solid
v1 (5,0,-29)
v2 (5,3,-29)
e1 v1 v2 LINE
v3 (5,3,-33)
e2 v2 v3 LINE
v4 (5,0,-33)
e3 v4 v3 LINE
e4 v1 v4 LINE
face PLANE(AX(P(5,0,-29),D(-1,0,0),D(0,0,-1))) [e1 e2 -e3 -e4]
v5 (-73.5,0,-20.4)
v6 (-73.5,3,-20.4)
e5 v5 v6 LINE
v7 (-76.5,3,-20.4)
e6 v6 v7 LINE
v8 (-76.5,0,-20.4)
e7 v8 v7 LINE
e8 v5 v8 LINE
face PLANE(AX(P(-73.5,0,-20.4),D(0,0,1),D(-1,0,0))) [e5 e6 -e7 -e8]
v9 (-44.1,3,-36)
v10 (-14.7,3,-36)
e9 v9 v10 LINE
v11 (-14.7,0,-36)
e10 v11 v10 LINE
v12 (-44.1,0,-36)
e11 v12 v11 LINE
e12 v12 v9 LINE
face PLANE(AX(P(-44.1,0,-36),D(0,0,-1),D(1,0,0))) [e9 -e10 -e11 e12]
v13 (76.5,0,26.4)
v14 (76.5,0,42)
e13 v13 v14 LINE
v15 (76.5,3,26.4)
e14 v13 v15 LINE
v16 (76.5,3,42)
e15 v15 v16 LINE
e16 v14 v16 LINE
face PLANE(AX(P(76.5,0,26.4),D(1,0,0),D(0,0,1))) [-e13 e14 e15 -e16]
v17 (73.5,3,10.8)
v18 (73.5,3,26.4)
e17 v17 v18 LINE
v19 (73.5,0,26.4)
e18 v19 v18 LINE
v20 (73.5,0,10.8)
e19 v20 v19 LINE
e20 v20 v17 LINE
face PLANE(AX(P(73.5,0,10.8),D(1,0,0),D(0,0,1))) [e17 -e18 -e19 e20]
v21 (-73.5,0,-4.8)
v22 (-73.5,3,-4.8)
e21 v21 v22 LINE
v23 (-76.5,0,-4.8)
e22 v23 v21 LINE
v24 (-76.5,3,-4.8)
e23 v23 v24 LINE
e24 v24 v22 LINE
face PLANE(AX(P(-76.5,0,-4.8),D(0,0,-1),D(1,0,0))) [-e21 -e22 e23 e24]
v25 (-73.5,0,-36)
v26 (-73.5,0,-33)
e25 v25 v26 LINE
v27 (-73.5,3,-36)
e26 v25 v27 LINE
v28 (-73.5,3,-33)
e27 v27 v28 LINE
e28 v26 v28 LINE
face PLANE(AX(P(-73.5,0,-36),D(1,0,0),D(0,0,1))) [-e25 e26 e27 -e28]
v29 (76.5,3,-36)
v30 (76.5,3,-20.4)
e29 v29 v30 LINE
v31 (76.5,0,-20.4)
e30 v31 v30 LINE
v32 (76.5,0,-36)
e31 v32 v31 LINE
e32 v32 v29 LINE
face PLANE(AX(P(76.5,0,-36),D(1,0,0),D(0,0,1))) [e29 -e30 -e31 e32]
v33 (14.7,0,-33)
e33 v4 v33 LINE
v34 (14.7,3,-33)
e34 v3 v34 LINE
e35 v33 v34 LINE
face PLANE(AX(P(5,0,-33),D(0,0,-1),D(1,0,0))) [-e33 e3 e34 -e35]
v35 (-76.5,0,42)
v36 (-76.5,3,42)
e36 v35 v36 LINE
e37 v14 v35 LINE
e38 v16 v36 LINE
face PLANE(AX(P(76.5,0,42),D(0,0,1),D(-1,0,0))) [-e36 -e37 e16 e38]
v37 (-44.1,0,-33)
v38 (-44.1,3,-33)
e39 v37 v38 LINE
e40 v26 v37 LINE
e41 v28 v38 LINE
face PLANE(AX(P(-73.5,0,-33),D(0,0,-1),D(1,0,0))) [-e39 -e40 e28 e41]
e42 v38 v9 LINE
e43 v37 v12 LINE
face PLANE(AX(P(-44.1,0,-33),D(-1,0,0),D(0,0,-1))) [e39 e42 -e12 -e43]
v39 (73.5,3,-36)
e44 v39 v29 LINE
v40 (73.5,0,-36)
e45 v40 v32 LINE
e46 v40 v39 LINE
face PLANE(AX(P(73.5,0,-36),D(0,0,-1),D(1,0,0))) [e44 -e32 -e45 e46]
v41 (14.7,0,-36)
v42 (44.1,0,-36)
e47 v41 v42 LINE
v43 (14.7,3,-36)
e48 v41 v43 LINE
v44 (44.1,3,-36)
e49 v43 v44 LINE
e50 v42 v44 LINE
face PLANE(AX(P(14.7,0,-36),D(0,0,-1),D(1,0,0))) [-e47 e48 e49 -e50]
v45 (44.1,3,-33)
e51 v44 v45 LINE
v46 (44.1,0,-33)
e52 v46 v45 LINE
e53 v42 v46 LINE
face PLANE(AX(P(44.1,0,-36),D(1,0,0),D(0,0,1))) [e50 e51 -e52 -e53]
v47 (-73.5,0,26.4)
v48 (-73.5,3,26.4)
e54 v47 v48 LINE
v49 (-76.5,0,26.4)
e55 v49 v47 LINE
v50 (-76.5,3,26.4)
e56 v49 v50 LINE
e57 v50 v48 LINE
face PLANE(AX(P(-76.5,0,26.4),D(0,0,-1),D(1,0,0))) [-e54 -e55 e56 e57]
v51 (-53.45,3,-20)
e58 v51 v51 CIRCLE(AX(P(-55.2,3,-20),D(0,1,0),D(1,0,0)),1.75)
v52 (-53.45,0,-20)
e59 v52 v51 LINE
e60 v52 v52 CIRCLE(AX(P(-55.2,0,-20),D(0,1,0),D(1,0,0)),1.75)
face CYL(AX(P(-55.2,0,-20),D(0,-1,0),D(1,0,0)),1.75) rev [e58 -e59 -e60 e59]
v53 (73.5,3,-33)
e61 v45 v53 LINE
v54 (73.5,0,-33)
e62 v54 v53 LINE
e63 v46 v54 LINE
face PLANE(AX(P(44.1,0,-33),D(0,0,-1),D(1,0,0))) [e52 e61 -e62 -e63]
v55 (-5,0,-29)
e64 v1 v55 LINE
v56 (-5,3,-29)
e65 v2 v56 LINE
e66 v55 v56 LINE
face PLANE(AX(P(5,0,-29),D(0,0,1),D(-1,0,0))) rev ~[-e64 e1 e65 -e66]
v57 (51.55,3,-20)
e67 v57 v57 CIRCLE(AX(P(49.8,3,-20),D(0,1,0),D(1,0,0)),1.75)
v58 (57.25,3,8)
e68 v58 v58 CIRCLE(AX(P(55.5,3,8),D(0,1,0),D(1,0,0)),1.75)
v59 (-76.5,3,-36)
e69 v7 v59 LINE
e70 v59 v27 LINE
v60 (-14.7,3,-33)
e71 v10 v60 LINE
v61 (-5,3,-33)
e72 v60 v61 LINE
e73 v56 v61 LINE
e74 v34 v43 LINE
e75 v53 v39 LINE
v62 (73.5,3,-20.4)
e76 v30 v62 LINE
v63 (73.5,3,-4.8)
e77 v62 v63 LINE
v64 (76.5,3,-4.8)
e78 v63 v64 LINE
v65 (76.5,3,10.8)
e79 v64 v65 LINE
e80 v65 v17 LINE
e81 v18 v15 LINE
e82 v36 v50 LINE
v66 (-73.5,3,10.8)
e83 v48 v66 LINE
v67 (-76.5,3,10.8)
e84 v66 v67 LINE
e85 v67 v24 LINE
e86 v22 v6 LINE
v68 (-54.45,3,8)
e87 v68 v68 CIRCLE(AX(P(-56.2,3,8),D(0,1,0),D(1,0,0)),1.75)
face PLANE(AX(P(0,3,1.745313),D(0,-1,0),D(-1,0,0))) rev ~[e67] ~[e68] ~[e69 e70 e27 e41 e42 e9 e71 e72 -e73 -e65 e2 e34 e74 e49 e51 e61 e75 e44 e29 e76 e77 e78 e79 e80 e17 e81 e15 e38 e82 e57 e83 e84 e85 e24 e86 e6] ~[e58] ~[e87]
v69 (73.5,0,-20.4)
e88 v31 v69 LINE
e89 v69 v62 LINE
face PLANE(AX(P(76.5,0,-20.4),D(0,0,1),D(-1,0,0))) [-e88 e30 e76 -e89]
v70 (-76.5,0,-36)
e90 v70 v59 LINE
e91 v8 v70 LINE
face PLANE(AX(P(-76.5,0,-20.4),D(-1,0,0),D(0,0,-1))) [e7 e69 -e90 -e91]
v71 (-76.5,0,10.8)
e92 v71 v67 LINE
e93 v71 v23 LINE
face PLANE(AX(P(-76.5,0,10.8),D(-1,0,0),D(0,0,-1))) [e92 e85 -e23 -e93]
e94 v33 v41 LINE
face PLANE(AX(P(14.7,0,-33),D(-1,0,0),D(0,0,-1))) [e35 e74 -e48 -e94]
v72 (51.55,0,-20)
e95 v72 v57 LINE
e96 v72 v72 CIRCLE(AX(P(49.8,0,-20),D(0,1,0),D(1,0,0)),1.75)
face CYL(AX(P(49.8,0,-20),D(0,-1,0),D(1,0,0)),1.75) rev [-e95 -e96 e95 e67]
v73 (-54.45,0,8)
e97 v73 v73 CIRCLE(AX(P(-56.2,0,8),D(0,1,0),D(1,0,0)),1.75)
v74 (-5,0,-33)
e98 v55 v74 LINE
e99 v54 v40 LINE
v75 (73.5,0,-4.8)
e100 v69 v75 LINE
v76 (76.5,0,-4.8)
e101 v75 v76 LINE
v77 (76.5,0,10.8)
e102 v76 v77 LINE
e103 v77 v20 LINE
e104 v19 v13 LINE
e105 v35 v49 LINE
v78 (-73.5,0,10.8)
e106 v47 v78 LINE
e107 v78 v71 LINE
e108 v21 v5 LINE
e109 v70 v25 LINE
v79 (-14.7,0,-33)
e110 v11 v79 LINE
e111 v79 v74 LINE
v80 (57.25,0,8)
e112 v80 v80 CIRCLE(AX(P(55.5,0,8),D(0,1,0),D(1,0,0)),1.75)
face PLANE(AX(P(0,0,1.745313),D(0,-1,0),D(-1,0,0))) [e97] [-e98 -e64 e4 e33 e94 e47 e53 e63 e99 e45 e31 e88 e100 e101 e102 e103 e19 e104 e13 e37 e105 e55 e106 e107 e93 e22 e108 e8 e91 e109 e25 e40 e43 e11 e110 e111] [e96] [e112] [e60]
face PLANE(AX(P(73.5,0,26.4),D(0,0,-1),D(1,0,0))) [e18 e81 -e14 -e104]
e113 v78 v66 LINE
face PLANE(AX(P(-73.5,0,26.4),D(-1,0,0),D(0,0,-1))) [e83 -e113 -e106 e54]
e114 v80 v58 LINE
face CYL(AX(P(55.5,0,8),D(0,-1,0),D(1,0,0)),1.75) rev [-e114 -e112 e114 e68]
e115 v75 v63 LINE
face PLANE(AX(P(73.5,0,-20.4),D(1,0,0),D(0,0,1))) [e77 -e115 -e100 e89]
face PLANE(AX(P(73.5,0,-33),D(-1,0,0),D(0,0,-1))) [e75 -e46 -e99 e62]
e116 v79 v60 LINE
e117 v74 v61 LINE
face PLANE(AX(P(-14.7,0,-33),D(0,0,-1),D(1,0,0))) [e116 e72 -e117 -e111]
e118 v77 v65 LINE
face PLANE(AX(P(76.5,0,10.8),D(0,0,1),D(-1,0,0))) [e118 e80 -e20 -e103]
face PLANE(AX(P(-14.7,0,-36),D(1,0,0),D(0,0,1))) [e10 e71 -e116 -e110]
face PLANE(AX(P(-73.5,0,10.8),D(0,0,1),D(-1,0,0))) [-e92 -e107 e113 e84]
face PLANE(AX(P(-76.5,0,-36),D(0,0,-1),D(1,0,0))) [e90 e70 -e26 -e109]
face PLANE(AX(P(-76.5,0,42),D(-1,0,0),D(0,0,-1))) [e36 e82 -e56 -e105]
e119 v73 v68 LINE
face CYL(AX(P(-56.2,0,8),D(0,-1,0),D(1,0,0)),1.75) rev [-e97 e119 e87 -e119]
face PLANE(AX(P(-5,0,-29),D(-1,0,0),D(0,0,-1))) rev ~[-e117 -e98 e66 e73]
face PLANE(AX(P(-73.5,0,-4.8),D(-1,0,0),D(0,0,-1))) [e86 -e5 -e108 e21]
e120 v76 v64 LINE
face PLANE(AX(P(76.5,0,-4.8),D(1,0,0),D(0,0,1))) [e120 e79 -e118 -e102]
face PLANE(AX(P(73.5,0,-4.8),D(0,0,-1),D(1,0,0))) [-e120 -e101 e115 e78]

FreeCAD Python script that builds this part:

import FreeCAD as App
import Part
import Sketcher
Q = App.Units.Quantity


def add_polygon(sketch, points):
    """Adds a closed chain of lines whose ends are joined by coincident constraints."""
    first, n = sketch.GeometryCount, len(points)
    for a, b in zip(points, points[1:] + points[:1]):
        sketch.addGeometry(Part.LineSegment(App.Vector(*a, 0), App.Vector(*b, 0)), False)
    for i in range(n):
        sketch.addConstraint(Sketcher.Constraint("Coincident", first + i, 2, first + (i + 1) % n, 1))

doc = App.newDocument("Part")
body = doc.addObject("PartDesign::Body", "Body")

# Sketch on XZ plane
sketch1 = body.newObject("Sketcher::SketchObject", "Sketch")
sketch1.AttachmentSupport = (doc.getObject("XZ_Plane"), [""])
sketch1.MapMode = "FlatFace"
add_polygon(sketch1, [(-44.1, -33), (-73.5, -33), (-73.5, -36), (-76.5, -36), (-76.5, -20.4), (-73.5, -20.4), (-73.5, -4.8), (-76.5, -4.8), (-76.5, 10.8), (-73.5, 10.8), (-73.5, 26.4), (-76.5, 26.4), (-76.5, 42), (76.5, 42), (76.5, 26.4), (73.5, 26.4), (73.5, 10.8), (76.5, 10.8), (76.5, -4.8), (73.5, -4.8), (73.5, -20.4), (76.5, -20.4), (76.5, -36), (73.5, -36), (73.5, -33), (44.1, -33), (44.1, -36), (14.7, -36), (14.7, -33), (5, -33), (5, -29), (-5, -29), (-5, -33), (-14.7, -33), (-14.7, -36), (-44.1, -36)])  # lines 0-35
sketch1.addGeometry(Part.Circle(App.Vector(55.5, 8, 0), App.Vector(0, 0, 1), 1.75), False)  # 36
sketch1.addGeometry(Part.Circle(App.Vector(-56.2, 8, 0), App.Vector(0, 0, 1), 1.75), False)  # 37
sketch1.addGeometry(Part.Circle(App.Vector(49.8, -20, 0), App.Vector(0, 0, 1), 1.75), False)  # 38
sketch1.addGeometry(Part.Circle(App.Vector(-55.2, -20, 0), App.Vector(0, 0, 1), 1.75), False)  # 39
sketch1.addConstraint(Sketcher.Constraint("Horizontal", 0))
sketch1.addConstraint(Sketcher.Constraint("Vertical", 1))
sketch1.addConstraint(Sketcher.Constraint("Horizontal", 2))
sketch1.addConstraint(Sketcher.Constraint("Vertical", 3))
sketch1.addConstraint(Sketcher.Constraint("Horizontal", 4))
sketch1.addConstraint(Sketcher.Constraint("Vertical", 5))
sketch1.addConstraint(Sketcher.Constraint("Horizontal", 6))
sketch1.addConstraint(Sketcher.Constraint("Vertical", 7))
sketch1.addConstraint(Sketcher.Constraint("Horizontal", 8))
sketch1.addConstraint(Sketcher.Constraint("Vertical", 9))
sketch1.addConstraint(Sketcher.Constraint("Horizontal", 10))
sketch1.addConstraint(Sketcher.Constraint("Vertical", 11))
sketch1.addConstraint(Sketcher.Constraint("Horizontal", 12))
sketch1.addConstraint(Sketcher.Constraint("Vertical", 13))
sketch1.addConstraint(Sketcher.Constraint("Horizontal", 14))
sketch1.addConstraint(Sketcher.Constraint("Vertical", 15))
sketch1.addConstraint(Sketcher.Constraint("Horizontal", 16))
sketch1.addConstraint(Sketcher.Constraint("Vertical", 17))
sketch1.addConstraint(Sketcher.Constraint("Horizontal", 18))
sketch1.addConstraint(Sketcher.Constraint("Vertical", 19))
sketch1.addConstraint(Sketcher.Constraint("Horizontal", 20))
sketch1.addConstraint(Sketcher.Constraint("Vertical", 21))
sketch1.addConstraint(Sketcher.Constraint("Horizontal", 22))
sketch1.addConstraint(Sketcher.Constraint("Vertical", 23))
sketch1.addConstraint(Sketcher.Constraint("Horizontal", 24))
sketch1.addConstraint(Sketcher.Constraint("Vertical", 25))
sketch1.addConstraint(Sketcher.Constraint("Horizontal", 26))
sketch1.addConstraint(Sketcher.Constraint("Vertical", 27))
sketch1.addConstraint(Sketcher.Constraint("Horizontal", 28))
sketch1.addConstraint(Sketcher.Constraint("Vertical", 29))
sketch1.addConstraint(Sketcher.Constraint("Horizontal", 30))
sketch1.addConstraint(Sketcher.Constraint("Vertical", 31))
sketch1.addConstraint(Sketcher.Constraint("Horizontal", 32))
sketch1.addConstraint(Sketcher.Constraint("Vertical", 33))
sketch1.addConstraint(Sketcher.Constraint("Horizontal", 34))
sketch1.addConstraint(Sketcher.Constraint("Vertical", 35))
sketch1.addConstraint(Sketcher.Constraint("Equal", 36, 37))
sketch1.addConstraint(Sketcher.Constraint("Equal", 37, 38))
sketch1.addConstraint(Sketcher.Constraint("Equal", 38, 39))
sketch1.addConstraint(Sketcher.Constraint("Symmetric", 10, 2, 13, 2, -2))
sketch1.addConstraint(Sketcher.Constraint("Symmetric", 8, 2, 15, 2, -2))
sketch1.addConstraint(Sketcher.Constraint("Symmetric", 6, 2, 17, 2, -2))
sketch1.addConstraint(Sketcher.Constraint("Symmetric", 4, 2, 19, 2, -2))
sketch1.addConstraint(Sketcher.Constraint("Symmetric", 2, 2, 21, 2, -2))
sketch1.addConstraint(Sketcher.Constraint("Symmetric", 0, 2, 23, 2, -2))
sketch1.addConstraint(Sketcher.Constraint("Symmetric", 28, 2, 31, 2, -2))
sketch1.addConstraint(Sketcher.Constraint("Symmetric", 26, 2, 33, 2, -2))
sketch1.addConstraint(Sketcher.Constraint("Horizontal", 36, 3, 37, 3))
sketch1.addConstraint(Sketcher.Constraint("Horizontal", 38, 3, 39, 3))
sketch1.addConstraint(Sketcher.Constraint("Horizontal", 22, 2, 25, 2))
sketch1.addConstraint(Sketcher.Constraint("Horizontal", 24, 2, 27, 2))
sketch1.addConstraint(Sketcher.Constraint("Vertical", 1, 2, 4, 2))
sketch1.addConstraint(Sketcher.Constraint("Vertical", 3, 2, 6, 2))
sketch1.addConstraint(Sketcher.Constraint("Vertical", 5, 2, 8, 2))
sketch1.addConstraint(Sketcher.Constraint("Vertical", 7, 2, 10, 2))
sketch1.addConstraint(Sketcher.Constraint("Equal", 0, 24))
sketch1.addConstraint(Sketcher.Constraint("Equal", 24, 26))
sketch1.addConstraint(Sketcher.Constraint("Equal", 22, 1))
sketch1.addConstraint(Sketcher.Constraint("Equal", 3, 5))
sketch1.addConstraint(Sketcher.Constraint("Equal", 5, 7))
sketch1.addConstraint(Sketcher.Constraint("Equal", 7, 9))
sketch1.addConstraint(Sketcher.Constraint("Equal", 9, 11))
sketch1.addConstraint(Sketcher.Constraint("Diameter", 36, Q("3.5 mm")))
sketch1.addConstraint(Sketcher.Constraint("DistanceX", 2, 2, 2, 1, Q("3 mm")))
sketch1.addConstraint(Sketcher.Constraint("DistanceX", 12, 1, 12, 2, Q("153 mm")))
sketch1.addConstraint(Sketcher.Constraint("DistanceX", 30, 2, 30, 1, Q("10 mm")))
sketch1.addConstraint(Sketcher.Constraint("DistanceY", 29, 1, 29, 2, Q("4 mm")))
sketch1.addConstraint(Sketcher.Constraint("DistanceX", 0, 2, 0, 1, Q("29.4 mm")))
sketch1.addConstraint(Sketcher.Constraint("DistanceY", 3, 1, 3, 2, Q("15.6 mm")))
sketch1.addConstraint(Sketcher.Constraint("DistanceY", -1, 1, 36, 3, Q("8 mm")))
sketch1.addConstraint(Sketcher.Constraint("DistanceY", 38, 3, -1, 1, Q("20 mm")))
sketch1.addConstraint(Sketcher.Constraint("DistanceY", 0, 2, -1, 1, Q("33 mm")))
sketch1.addConstraint(Sketcher.Constraint("DistanceX", 37, 3, 38, 3, Q("106 mm")))
sketch1.addConstraint(Sketcher.Constraint("DistanceX", 37, 3, 39, 3, Q("1 mm")))
sketch1.addConstraint(Sketcher.Constraint("DistanceX", 0, 2, 36, 3, Q("129 mm")))
sketch1.addConstraint(Sketcher.Constraint("DistanceX", 37, 3, -1, 1, Q("56.2 mm")))
pad1 = body.newObject("PartDesign::Pad", "Pad")
pad1.Profile = sketch1
pad1.Length = 3
pad1.Reversed = True

doc.recompute()
